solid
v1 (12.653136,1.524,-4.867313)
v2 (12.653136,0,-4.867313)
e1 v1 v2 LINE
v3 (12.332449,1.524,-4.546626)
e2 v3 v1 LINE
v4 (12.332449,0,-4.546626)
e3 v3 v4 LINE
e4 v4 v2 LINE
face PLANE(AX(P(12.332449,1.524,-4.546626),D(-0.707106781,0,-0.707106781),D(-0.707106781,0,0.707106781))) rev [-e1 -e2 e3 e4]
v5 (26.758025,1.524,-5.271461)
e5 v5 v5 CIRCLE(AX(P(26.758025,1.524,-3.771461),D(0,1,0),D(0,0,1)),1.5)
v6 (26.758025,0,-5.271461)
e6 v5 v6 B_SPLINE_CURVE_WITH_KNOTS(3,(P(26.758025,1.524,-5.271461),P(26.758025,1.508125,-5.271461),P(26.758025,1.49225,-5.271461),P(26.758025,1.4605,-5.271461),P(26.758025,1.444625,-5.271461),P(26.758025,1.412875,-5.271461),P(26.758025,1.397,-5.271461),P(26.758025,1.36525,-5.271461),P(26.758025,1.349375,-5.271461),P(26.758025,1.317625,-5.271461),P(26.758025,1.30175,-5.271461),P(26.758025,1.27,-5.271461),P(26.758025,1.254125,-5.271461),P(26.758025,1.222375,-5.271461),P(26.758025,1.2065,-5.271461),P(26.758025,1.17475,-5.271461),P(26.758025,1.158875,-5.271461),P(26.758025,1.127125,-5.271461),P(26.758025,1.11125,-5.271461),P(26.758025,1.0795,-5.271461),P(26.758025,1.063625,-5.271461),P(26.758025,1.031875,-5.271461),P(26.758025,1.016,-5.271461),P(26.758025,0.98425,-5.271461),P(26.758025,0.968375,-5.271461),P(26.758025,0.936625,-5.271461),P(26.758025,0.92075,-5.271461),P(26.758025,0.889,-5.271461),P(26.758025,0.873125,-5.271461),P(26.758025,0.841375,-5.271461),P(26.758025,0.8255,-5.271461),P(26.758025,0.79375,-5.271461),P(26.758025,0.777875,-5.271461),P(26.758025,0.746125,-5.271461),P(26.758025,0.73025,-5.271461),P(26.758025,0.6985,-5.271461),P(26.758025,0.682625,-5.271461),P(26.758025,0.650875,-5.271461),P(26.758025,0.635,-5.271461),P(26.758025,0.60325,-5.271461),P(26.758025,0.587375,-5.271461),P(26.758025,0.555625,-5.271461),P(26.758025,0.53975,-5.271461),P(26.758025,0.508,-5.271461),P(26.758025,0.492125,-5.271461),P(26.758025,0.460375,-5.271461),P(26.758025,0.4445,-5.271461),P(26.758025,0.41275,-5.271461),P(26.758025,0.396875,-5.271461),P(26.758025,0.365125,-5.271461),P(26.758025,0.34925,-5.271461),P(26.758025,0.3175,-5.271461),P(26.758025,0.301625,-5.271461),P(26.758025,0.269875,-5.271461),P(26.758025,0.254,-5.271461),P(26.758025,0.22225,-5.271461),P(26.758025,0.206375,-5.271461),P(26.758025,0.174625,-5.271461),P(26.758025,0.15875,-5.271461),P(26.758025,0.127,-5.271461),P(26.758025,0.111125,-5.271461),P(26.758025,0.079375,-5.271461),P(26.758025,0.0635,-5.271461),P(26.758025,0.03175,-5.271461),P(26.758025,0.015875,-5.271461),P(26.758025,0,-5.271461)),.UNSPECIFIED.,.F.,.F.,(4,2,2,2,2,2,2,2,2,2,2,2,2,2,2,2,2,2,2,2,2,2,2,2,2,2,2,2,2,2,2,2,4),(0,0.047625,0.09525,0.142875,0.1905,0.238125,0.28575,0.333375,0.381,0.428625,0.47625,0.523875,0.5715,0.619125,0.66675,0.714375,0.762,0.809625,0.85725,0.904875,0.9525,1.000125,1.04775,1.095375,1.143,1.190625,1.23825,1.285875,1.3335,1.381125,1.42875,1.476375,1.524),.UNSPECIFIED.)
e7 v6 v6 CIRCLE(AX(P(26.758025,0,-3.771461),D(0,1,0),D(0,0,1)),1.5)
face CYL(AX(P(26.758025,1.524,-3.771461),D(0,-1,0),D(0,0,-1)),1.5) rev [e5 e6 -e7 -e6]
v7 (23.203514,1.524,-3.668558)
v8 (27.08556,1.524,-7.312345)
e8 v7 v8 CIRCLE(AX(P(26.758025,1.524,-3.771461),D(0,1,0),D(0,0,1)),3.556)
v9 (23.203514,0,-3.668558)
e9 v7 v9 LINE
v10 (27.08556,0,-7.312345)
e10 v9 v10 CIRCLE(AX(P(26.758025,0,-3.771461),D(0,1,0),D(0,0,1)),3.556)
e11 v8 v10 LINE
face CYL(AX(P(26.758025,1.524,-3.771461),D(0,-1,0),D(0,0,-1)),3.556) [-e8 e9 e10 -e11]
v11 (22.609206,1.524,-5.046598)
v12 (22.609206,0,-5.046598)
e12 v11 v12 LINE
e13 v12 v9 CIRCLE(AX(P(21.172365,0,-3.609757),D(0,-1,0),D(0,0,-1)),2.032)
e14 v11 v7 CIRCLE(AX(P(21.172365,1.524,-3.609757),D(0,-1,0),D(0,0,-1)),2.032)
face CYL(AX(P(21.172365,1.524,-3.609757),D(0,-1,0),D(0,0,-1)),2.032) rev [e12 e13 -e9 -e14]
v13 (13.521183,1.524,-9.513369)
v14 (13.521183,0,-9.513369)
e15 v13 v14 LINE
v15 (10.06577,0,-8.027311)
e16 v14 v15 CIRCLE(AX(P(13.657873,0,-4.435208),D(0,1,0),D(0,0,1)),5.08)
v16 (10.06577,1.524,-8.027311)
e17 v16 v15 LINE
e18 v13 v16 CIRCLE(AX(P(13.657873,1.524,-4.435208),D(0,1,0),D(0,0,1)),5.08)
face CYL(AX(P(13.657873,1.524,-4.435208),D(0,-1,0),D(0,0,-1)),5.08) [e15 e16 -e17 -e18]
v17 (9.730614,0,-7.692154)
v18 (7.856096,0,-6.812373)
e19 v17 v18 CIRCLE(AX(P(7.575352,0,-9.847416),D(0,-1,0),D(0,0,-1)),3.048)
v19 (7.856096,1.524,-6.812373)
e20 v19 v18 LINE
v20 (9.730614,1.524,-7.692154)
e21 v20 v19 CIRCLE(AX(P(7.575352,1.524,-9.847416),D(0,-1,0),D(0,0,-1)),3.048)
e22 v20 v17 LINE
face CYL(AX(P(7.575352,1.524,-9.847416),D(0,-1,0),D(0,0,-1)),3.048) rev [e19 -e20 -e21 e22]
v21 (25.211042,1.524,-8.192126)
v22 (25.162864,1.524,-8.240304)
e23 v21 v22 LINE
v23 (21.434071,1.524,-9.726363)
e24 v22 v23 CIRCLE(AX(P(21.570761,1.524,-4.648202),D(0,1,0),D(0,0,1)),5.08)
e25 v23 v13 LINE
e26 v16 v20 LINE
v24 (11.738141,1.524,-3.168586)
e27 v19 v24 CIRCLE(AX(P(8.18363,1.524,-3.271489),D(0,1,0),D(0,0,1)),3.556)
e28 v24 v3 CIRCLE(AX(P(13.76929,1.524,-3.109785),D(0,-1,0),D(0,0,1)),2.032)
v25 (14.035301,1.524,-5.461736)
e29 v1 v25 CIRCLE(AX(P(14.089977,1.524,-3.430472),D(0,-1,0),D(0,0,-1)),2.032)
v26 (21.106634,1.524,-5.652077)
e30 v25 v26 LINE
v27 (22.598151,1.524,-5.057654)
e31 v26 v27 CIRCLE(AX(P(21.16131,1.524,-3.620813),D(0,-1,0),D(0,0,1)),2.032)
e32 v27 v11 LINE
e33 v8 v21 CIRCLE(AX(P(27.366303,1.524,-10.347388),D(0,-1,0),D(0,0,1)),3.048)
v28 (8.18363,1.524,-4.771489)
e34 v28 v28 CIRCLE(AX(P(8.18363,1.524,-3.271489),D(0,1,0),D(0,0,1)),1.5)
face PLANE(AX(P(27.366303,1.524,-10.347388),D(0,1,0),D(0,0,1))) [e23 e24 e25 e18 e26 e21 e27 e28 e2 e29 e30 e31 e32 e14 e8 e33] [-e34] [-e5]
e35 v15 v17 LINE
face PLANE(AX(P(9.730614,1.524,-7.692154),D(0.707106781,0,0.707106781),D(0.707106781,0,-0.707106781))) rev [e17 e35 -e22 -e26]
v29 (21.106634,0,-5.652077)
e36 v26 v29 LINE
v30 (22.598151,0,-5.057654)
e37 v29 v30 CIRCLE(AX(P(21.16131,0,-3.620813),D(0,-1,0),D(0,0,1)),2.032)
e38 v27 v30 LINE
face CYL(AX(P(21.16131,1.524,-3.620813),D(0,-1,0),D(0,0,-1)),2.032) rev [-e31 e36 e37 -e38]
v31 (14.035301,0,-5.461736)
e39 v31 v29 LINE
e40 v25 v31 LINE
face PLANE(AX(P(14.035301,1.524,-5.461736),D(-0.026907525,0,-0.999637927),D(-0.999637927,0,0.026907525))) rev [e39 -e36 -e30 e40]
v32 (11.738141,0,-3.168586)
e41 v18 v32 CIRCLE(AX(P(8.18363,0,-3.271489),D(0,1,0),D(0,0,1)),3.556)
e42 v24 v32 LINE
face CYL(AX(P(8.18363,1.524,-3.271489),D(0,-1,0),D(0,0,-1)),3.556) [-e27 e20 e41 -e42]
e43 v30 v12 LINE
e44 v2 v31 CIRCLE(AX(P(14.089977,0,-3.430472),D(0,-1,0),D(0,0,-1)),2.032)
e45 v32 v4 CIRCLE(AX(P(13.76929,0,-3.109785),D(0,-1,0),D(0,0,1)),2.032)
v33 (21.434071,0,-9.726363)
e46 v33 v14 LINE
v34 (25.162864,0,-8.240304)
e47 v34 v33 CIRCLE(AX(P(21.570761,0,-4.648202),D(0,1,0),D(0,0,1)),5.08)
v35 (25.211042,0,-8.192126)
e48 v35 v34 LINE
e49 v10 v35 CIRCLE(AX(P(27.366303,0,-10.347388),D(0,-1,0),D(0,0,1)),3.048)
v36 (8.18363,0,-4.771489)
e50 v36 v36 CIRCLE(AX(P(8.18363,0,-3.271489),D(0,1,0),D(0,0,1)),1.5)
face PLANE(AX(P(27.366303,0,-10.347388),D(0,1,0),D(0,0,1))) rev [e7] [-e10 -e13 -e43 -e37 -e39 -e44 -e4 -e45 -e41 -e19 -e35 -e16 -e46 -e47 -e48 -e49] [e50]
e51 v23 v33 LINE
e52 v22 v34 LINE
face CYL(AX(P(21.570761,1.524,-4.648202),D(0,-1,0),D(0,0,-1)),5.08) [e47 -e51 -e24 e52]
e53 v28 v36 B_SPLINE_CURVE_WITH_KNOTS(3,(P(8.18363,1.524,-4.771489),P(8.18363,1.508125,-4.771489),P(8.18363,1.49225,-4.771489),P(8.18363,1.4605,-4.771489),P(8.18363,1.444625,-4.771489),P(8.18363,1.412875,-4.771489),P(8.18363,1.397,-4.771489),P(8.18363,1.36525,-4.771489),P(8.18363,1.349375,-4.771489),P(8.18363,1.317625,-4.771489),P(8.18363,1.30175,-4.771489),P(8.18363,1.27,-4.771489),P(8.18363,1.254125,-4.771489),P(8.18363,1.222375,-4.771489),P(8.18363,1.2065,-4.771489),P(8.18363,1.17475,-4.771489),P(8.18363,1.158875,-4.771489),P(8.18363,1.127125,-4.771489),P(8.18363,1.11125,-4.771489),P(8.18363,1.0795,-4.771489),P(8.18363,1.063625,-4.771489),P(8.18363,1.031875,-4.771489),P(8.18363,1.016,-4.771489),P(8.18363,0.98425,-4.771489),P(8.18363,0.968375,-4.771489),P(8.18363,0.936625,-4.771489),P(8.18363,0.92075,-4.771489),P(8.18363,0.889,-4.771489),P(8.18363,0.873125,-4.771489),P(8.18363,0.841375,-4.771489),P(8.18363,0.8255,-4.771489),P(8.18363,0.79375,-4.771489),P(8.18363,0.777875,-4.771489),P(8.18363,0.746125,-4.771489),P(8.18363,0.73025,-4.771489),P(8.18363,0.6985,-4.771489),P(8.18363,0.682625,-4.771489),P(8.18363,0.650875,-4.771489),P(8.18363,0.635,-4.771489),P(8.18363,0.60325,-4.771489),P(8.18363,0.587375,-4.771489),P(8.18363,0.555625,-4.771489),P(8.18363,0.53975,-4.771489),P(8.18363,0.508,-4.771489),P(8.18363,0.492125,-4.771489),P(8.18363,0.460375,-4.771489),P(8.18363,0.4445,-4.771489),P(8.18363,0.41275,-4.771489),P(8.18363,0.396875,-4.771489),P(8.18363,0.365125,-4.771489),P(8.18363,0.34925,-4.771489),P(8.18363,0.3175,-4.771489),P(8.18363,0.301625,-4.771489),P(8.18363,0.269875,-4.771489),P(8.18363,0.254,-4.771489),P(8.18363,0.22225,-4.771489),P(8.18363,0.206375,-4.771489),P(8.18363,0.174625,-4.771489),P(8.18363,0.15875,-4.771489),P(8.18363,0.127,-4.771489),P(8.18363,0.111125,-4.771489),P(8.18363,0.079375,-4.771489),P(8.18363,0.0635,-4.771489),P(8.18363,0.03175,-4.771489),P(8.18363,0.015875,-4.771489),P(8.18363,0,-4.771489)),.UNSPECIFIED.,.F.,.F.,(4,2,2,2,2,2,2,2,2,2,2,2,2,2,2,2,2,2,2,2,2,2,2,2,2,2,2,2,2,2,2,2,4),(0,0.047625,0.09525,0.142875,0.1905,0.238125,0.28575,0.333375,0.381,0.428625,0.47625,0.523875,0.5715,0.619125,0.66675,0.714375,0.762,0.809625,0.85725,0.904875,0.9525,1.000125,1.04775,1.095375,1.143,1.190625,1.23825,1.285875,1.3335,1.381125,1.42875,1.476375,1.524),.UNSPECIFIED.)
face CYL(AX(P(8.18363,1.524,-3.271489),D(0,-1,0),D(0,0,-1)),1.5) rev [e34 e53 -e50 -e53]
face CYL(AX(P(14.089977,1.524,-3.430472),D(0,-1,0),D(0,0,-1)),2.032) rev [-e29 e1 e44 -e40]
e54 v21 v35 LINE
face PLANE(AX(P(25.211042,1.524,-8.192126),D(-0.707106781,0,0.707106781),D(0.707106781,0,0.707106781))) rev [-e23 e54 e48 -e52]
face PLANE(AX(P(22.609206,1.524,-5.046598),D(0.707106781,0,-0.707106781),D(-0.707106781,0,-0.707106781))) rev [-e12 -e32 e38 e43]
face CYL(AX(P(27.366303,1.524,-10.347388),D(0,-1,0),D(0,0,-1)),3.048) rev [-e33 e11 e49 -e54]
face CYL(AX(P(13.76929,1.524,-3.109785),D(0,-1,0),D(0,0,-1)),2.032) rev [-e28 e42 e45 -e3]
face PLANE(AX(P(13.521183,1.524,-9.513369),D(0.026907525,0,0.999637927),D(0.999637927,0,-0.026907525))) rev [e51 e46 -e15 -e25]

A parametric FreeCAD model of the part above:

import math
import FreeCAD as App
import Part
import Sketcher
Q = App.Units.Quantity

doc = App.newDocument("Part")
body = doc.addObject("PartDesign::Body", "Body")

# Sketch on XZ plane
sketch1 = body.newObject("Sketcher::SketchObject", "Sketch")
sketch1.AttachmentSupport = (doc.getObject("XZ_Plane"), [""])
sketch1.MapMode = "FlatFace"
sketch1.addGeometry(Part.LineSegment(App.Vector(14.035301, -5.461736, 0), App.Vector(21.106634, -5.652077, 0)), False)
sketch1.addGeometry(Part.ArcOfCircle(Part.Circle(App.Vector(21.16131, -3.620813, 0), App.Vector(0, 0, 1), 2.032), math.radians(-91.541874), math.radians(-45)), False)
sketch1.addGeometry(Part.LineSegment(App.Vector(22.598151, -5.057654, 0), App.Vector(22.609206, -5.046598, 0)), False)
sketch1.addGeometry(Part.ArcOfCircle(Part.Circle(App.Vector(21.172365, -3.609757, 0), App.Vector(0, 0, 1), 2.032), math.radians(-45), math.radians(-1.658242)), False)
sketch1.addGeometry(Part.ArcOfCircle(Part.Circle(App.Vector(26.758025, -3.771461, 0), App.Vector(0, 0, 1), 3.556), math.radians(-84.715137), math.radians(178.341758)), False)
sketch1.addGeometry(Part.ArcOfCircle(Part.Circle(App.Vector(27.366303, -10.347388, 0), App.Vector(0, 0, 1), 3.048), math.radians(95.284863), math.radians(135)), False)
sketch1.addGeometry(Part.LineSegment(App.Vector(25.211042, -8.192126, 0), App.Vector(25.162864, -8.240304, 0)), False)
sketch1.addGeometry(Part.ArcOfCircle(Part.Circle(App.Vector(21.570761, -4.648202, 0), App.Vector(0, 0, 1), 5.08), math.radians(-91.541874), math.radians(-45)), False)
sketch1.addGeometry(Part.LineSegment(App.Vector(21.434071, -9.726363, 0), App.Vector(13.521183, -9.513369, 0)), False)
sketch1.addGeometry(Part.ArcOfCircle(Part.Circle(App.Vector(13.657873, -4.435209, 0), App.Vector(0, 0, 1), 5.08), math.radians(-135), math.radians(-91.541874)), False)
sketch1.addGeometry(Part.LineSegment(App.Vector(10.06577, -8.027311, 0), App.Vector(9.730614, -7.692154, 0)), False)
sketch1.addGeometry(Part.ArcOfCircle(Part.Circle(App.Vector(7.575352, -9.847416, 0), App.Vector(0, 0, 1), 3.048), math.radians(45), math.radians(84.715137)), False)
sketch1.addGeometry(Part.ArcOfCircle(Part.Circle(App.Vector(8.18363, -3.271489, 0), App.Vector(0, 0, 1), 3.556), math.radians(1.658242), math.radians(264.715137)), False)
sketch1.addGeometry(Part.ArcOfCircle(Part.Circle(App.Vector(13.76929, -3.109785, 0), App.Vector(0, 0, 1), 2.032), math.radians(-178.341758), math.radians(-135)), False)
sketch1.addGeometry(Part.LineSegment(App.Vector(12.332449, -4.546626, 0), App.Vector(12.653136, -4.867313, 0)), False)
sketch1.addGeometry(Part.ArcOfCircle(Part.Circle(App.Vector(14.089977, -3.430472, 0), App.Vector(0, 0, 1), 2.032), math.radians(-135), math.radians(-91.541874)), False)
sketch1.addGeometry(Part.Circle(App.Vector(8.18363, -3.271489, 0), App.Vector(0, 0, 1), 1.5), False)
sketch1.addGeometry(Part.Circle(App.Vector(26.758025, -3.771461, 0), App.Vector(0, 0, 1), 1.5), False)
sketch1.addConstraint(Sketcher.Constraint("Tangent", 0, 2, 1, 1))
sketch1.addConstraint(Sketcher.Constraint("Tangent", 1, 2, 2, 1))
sketch1.addConstraint(Sketcher.Constraint("Tangent", 2, 2, 3, 1))
sketch1.addConstraint(Sketcher.Constraint("Tangent", 3, 2, 4, 2))
sketch1.addConstraint(Sketcher.Constraint("Tangent", 4, 1, 5, 1))
sketch1.addConstraint(Sketcher.Constraint("Tangent", 5, 2, 6, 1))
sketch1.addConstraint(Sketcher.Constraint("Tangent", 6, 2, 7, 2))
sketch1.addConstraint(Sketcher.Constraint("Tangent", 7, 1, 8, 1))
sketch1.addConstraint(Sketcher.Constraint("Tangent", 8, 2, 9, 2))
sketch1.addConstraint(Sketcher.Constraint("Tangent", 9, 1, 10, 1))
sketch1.addConstraint(Sketcher.Constraint("Tangent", 10, 2, 11, 1))
sketch1.addConstraint(Sketcher.Constraint("Tangent", 11, 2, 12, 2))
sketch1.addConstraint(Sketcher.Constraint("Tangent", 12, 1, 13, 1))
sketch1.addConstraint(Sketcher.Constraint("Tangent", 13, 2, 14, 1))
sketch1.addConstraint(Sketcher.Constraint("Tangent", 14, 2, 15, 1))
sketch1.addConstraint(Sketcher.Constraint("Tangent", 15, 2, 0, 1))
sketch1.addConstraint(Sketcher.Constraint("Coincident", 16, 3, 12, 3))
sketch1.addConstraint(Sketcher.Constraint("Coincident", 17, 3, 4, 3))
sketch1.addConstraint(Sketcher.Constraint("Equal", 1, 3))
sketch1.addConstraint(Sketcher.Constraint("Equal", 7, 9))
sketch1.addConstraint(Sketcher.Constraint("Equal", 5, 11))
sketch1.addConstraint(Sketcher.Constraint("Equal", 4, 12))
sketch1.addConstraint(Sketcher.Constraint("Equal", 3, 13))
sketch1.addConstraint(Sketcher.Constraint("Equal", 13, 15))
sketch1.addConstraint(Sketcher.Constraint("Equal", 16, 17))
sketch1.addConstraint(Sketcher.Constraint("Parallel", 2, 6))
sketch1.addConstraint(Sketcher.Constraint("Parallel", 0, 8))
sketch1.addConstraint(Sketcher.Constraint("Perpendicular", 6, 10))
sketch1.addConstraint(Sketcher.Constraint("Parallel", 10, 14))
sketch1.addConstraint(Sketcher.Constraint("Radius", 7, Q("0.2 in")))
sketch1.addConstraint(Sketcher.Constraint("Radius", 1, Q("0.08 in")))
sketch1.addConstraint(Sketcher.Constraint("Radius", 4, Q("0.14 in")))
sketch1.addConstraint(Sketcher.Constraint("Radius", 5, Q("0.12 in")))
sketch1.addConstraint(Sketcher.Constraint("Angle", 6, Q("-134.999999 deg")))
sketch1.addConstraint(Sketcher.Constraint("Diameter", 16, 3.0))
sketch1.addConstraint(Sketcher.Constraint("DistanceY", 7, 3, -1, 1, Q("0.1830001 in")))
sketch1.addConstraint(Sketcher.Constraint("DistanceX", 5, 2, 4, 1, Q("0.0737999 in")))
sketch1.addConstraint(Sketcher.Constraint("DistanceX", 12, 3, 9, 1, Q("0.0741 in")))
sketch1.addConstraint(Sketcher.Constraint("DistanceX", 11, 2, 10, 2, Q("0.0737999 in")))
sketch1.addConstraint(Sketcher.Constraint("DistanceX", -1, 1, 15, 2, 14.035301))
sketch1.addConstraint(Sketcher.Constraint("DistanceY", 3, 2, 3, 3, 0.058801))
sketch1.addConstraint(Sketcher.Constraint("DistanceY", 12, 1, 13, 3, 0.058801))
sketch1.addConstraint(Sketcher.Constraint("Distance", 14, 0.45352))
sketch1.addConstraint(Sketcher.Constraint("DistanceX", -1, 1, 1, 3, 21.16131))
sketch1.addConstraint(Sketcher.Constraint("DistanceY", 4, 3, -1, 1, 3.771461))
sketch1.addConstraint(Sketcher.Constraint("DistanceX", -1, 1, 7, 3, 21.570761))
pad1 = body.newObject("PartDesign::Pad", "Pad")
pad1.Profile = sketch1
pad1.Length = Q("0.06 in")
pad1.Reversed = True

doc.recompute()
